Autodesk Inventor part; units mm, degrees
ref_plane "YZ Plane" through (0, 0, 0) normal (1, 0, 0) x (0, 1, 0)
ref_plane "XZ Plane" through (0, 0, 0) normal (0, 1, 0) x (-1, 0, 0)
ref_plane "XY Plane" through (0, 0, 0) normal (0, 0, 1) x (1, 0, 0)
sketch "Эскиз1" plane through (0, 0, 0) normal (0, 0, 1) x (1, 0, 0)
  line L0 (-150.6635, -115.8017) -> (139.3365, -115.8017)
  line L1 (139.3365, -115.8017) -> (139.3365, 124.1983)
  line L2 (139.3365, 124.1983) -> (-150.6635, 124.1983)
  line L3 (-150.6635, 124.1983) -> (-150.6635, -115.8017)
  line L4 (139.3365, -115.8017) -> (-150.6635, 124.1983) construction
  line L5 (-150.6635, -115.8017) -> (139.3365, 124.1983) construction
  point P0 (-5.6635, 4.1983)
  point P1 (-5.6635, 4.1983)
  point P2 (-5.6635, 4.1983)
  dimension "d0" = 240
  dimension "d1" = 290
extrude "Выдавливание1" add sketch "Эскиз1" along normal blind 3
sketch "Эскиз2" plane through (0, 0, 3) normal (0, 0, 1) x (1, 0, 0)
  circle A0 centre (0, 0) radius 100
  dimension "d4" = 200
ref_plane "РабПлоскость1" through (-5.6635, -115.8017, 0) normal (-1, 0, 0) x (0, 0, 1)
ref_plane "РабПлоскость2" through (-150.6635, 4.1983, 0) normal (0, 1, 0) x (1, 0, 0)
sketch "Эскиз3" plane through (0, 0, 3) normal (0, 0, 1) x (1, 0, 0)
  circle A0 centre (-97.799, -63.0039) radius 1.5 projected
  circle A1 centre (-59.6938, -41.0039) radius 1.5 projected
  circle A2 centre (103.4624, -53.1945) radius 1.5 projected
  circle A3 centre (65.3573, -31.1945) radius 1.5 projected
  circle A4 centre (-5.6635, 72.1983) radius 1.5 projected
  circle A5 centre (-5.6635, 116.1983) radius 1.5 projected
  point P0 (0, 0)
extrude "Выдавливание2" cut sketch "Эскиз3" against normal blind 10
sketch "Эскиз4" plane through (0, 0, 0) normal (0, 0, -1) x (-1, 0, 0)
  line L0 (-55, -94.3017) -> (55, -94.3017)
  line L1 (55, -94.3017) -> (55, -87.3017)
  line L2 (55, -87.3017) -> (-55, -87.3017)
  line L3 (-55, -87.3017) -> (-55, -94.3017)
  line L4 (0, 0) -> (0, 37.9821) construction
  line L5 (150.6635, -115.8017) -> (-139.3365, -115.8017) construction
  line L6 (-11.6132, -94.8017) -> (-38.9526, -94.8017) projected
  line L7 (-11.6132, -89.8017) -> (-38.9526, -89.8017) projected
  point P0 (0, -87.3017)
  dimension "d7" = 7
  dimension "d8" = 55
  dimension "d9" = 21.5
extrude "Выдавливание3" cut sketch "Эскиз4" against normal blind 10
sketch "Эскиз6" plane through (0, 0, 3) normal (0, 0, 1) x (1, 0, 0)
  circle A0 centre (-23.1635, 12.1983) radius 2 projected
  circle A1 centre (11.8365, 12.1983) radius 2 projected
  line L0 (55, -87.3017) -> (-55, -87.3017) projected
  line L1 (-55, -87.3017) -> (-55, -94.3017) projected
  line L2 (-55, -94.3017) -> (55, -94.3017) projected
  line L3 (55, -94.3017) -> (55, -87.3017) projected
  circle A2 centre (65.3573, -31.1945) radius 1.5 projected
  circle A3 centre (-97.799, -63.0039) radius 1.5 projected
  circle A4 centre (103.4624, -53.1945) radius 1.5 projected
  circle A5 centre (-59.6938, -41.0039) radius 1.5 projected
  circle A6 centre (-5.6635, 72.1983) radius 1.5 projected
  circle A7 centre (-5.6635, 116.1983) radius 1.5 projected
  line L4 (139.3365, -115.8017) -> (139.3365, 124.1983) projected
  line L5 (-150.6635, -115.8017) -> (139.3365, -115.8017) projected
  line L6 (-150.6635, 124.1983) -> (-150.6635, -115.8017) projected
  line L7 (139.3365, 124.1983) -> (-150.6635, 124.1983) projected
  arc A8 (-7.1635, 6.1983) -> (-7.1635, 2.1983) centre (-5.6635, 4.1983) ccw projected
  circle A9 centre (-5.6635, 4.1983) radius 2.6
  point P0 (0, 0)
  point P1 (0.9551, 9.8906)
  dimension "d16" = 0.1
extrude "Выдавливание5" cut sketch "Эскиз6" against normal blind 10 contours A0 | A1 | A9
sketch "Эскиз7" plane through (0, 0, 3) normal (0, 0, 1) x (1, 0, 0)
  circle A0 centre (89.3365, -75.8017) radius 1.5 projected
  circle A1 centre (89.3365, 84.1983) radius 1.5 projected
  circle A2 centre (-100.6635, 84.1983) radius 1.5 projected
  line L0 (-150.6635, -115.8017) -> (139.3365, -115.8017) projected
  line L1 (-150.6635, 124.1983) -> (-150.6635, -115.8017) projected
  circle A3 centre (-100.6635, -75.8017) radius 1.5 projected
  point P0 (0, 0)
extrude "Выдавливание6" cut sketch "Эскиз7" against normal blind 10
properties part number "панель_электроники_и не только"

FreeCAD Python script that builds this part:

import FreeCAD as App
import Part
import Sketcher


def add_polygon(sketch, points):
    """Adds a closed chain of lines whose ends are joined by coincident constraints."""
    first, n = sketch.GeometryCount, len(points)
    for a, b in zip(points, points[1:] + points[:1]):
        sketch.addGeometry(Part.LineSegment(App.Vector(*a, 0), App.Vector(*b, 0)), False)
    for i in range(n):
        sketch.addConstraint(Sketcher.Constraint("Coincident", first + i, 2, first + (i + 1) % n, 1))

doc = App.newDocument("Part")
body = doc.addObject("PartDesign::Body", "Body")

sketch1 = body.newObject("Sketcher::SketchObject", "Sketch")
sketch1.AttachmentSupport = (doc.getObject("XY_Plane"), [""])
sketch1.MapMode = "FlatFace"
add_polygon(sketch1, [(-151, 124), (-151, -116), (139, -116), (139, 124)])
sketch1.addConstraint(Sketcher.Constraint("Vertical", 0))
sketch1.addConstraint(Sketcher.Constraint("Horizontal", 1))
sketch1.addConstraint(Sketcher.Constraint("Vertical", 2))
sketch1.addConstraint(Sketcher.Constraint("Horizontal", 3))
sketch1.addConstraint(Sketcher.Constraint("DistanceX", 1, 1, 1, 2, 290.0))
sketch1.addConstraint(Sketcher.Constraint("DistanceY", 0, 2, 0, 1, 240.0))
sketch1.addConstraint(Sketcher.Constraint("DistanceX", 0, 2, -1, 1, 150.6635))
sketch1.addConstraint(Sketcher.Constraint("DistanceY", 0, 2, -1, 1, 115.8017))
pad1 = body.newObject("PartDesign::Pad", "Pad")
pad1.Profile = sketch1
pad1.Length = 3

sketch2 = body.newObject("Sketcher::SketchObject", "Sketch001")
sketch2.AttachmentSupport = (doc.getObject("XY_Plane"), [""])
sketch2.MapMode = "FlatFace"
sketch2.AttachmentOffset = App.Placement(App.Vector(0, 0, 3), App.Rotation())
sketch2.addGeometry(Part.Circle(App.Vector(-97.8, -63, 0), App.Vector(0, 0, 1), 1.5), False)
sketch2.addGeometry(Part.Circle(App.Vector(-59.7, -41, 0), App.Vector(0, 0, 1), 1.5), False)
sketch2.addGeometry(Part.Circle(App.Vector(103.5, -53.2, 0), App.Vector(0, 0, 1), 1.5), False)
sketch2.addGeometry(Part.Circle(App.Vector(65.4, -31.2, 0), App.Vector(0, 0, 1), 1.5), False)
sketch2.addGeometry(Part.Circle(App.Vector(-5.7, 72.2, 0), App.Vector(0, 0, 1), 1.5), False)
sketch2.addGeometry(Part.Circle(App.Vector(-5.7, 116.2, 0), App.Vector(0, 0, 1), 1.5), False)
sketch2.addConstraint(Sketcher.Constraint("Equal", 0, 1))
sketch2.addConstraint(Sketcher.Constraint("Equal", 1, 2))
sketch2.addConstraint(Sketcher.Constraint("Equal", 2, 3))
sketch2.addConstraint(Sketcher.Constraint("Equal", 3, 4))
sketch2.addConstraint(Sketcher.Constraint("Equal", 4, 5))
sketch2.addConstraint(Sketcher.Constraint("Vertical", 4, 3, 5, 3))
sketch2.addConstraint(Sketcher.Constraint("Diameter", 0, 3.0))
sketch2.addConstraint(Sketcher.Constraint("DistanceY", 0, 3, 1, 3, 22.0))
sketch2.addConstraint(Sketcher.Constraint("DistanceY", 2, 3, 3, 3, 22.0))
sketch2.addConstraint(Sketcher.Constraint("DistanceY", 4, 3, 5, 3, 44.0))
sketch2.addConstraint(Sketcher.Constraint("DistanceX", 0, 3, -1, 1, 97.799))
sketch2.addConstraint(Sketcher.Constraint("DistanceY", 0, 3, -1, 1, 63.004))
sketch2.addConstraint(Sketcher.Constraint("DistanceX", 3, 3, 2, 3, 38.105))
sketch2.addConstraint(Sketcher.Constraint("DistanceX", 1, 3, 3, 3, 125.051))
sketch2.addConstraint(Sketcher.Constraint("DistanceX", 4, 3, 2, 3, 109.126))
sketch2.addConstraint(Sketcher.Constraint("DistanceX", 1, 3, -1, 1, 59.6938))
sketch2.addConstraint(Sketcher.Constraint("DistanceY", 2, 3, -1, 1, 53.1945))
sketch2.addConstraint(Sketcher.Constraint("DistanceY", -1, 1, 4, 3, 72.1983))
pocket1 = body.newObject("PartDesign::Pocket", "Pocket")
pocket1.Profile = sketch2
pocket1.Length = 10

sketch3 = body.newObject("Sketcher::SketchObject", "Sketch002")
sketch3.AttachmentSupport = (doc.getObject("XY_Plane"), [""])
sketch3.MapMode = "FlatFace"
add_polygon(sketch3, [(55, -87), (55, -94), (-55, -94), (-55, -87)])
sketch3.addConstraint(Sketcher.Constraint("Vertical", 0))
sketch3.addConstraint(Sketcher.Constraint("Horizontal", 1))
sketch3.addConstraint(Sketcher.Constraint("Vertical", 2))
sketch3.addConstraint(Sketcher.Constraint("Horizontal", 3))
sketch3.addConstraint(Sketcher.Constraint("DistanceY", 0, 2, 0, 1, 7.0))
sketch3.addConstraint(Sketcher.Constraint("DistanceX", -1, 1, 0, 2, 55.0))
sketch3.addConstraint(Sketcher.Constraint("DistanceX", 1, 2, -1, 1, 55.0))
sketch3.addConstraint(Sketcher.Constraint("DistanceY", 0, 2, -1, 1, 94.3017))
pocket2 = body.newObject("PartDesign::Pocket", "Pocket001")
pocket2.Profile = sketch3
pocket2.Length = 10
pocket2.Reversed = True

sketch4 = body.newObject("Sketcher::SketchObject", "Sketch003")
sketch4.AttachmentSupport = (doc.getObject("XY_Plane"), [""])
sketch4.MapMode = "FlatFace"
sketch4.AttachmentOffset = App.Placement(App.Vector(0, 0, 3), App.Rotation())
sketch4.addGeometry(Part.Circle(App.Vector(-23.2, 12.2, 0), App.Vector(0, 0, 1), 2), False)
sketch4.addGeometry(Part.Circle(App.Vector(11.8, 12.2, 0), App.Vector(0, 0, 1), 2), False)
sketch4.addGeometry(Part.Circle(App.Vector(-5.7, 4.2, 0), App.Vector(0, 0, 1), 2.6), False)
sketch4.addConstraint(Sketcher.Constraint("Equal", 0, 1))
sketch4.addConstraint(Sketcher.Constraint("Horizontal", 0, 3, 1, 3))
sketch4.addConstraint(Sketcher.Constraint("Diameter", 0, 4.0))
sketch4.addConstraint(Sketcher.Constraint("Diameter", 2, 5.2))
sketch4.addConstraint(Sketcher.Constraint("DistanceX", 0, 3, 1, 3, 35.0))
sketch4.addConstraint(Sketcher.Constraint("DistanceY", 2, 3, 0, 3, 8.0))
sketch4.addConstraint(Sketcher.Constraint("DistanceX", 0, 3, 2, 3, 17.5))
sketch4.addConstraint(Sketcher.Constraint("DistanceX", 0, 3, -1, 1, 23.1635))
sketch4.addConstraint(Sketcher.Constraint("DistanceY", -1, 1, 0, 3, 12.1983))
pocket3 = body.newObject("PartDesign::Pocket", "Pocket002")
pocket3.Profile = sketch4
pocket3.Length = 10

sketch5 = body.newObject("Sketcher::SketchObject", "Sketch004")
sketch5.AttachmentSupport = (doc.getObject("XY_Plane"), [""])
sketch5.MapMode = "FlatFace"
sketch5.AttachmentOffset = App.Placement(App.Vector(0, 0, 3), App.Rotation())
sketch5.addGeometry(Part.Circle(App.Vector(89.3, -75.8, 0), App.Vector(0, 0, 1), 1.5), False)
sketch5.addGeometry(Part.Circle(App.Vector(89.3, 84.2, 0), App.Vector(0, 0, 1), 1.5), False)
sketch5.addGeometry(Part.Circle(App.Vector(-100.7, 84.2, 0), App.Vector(0, 0, 1), 1.5), False)
sketch5.addGeometry(Part.Circle(App.Vector(-100.7, -75.8, 0), App.Vector(0, 0, 1), 1.5), False)
sketch5.addConstraint(Sketcher.Constraint("Equal", 0, 1))
sketch5.addConstraint(Sketcher.Constraint("Equal", 1, 2))
sketch5.addConstraint(Sketcher.Constraint("Equal", 2, 3))
sketch5.addConstraint(Sketcher.Constraint("Horizontal", 1, 3, 2, 3))
sketch5.addConstraint(Sketcher.Constraint("Horizontal", 0, 3, 3, 3))
sketch5.addConstraint(Sketcher.Constraint("Vertical", 0, 3, 1, 3))
sketch5.addConstraint(Sketcher.Constraint("Vertical", 2, 3, 3, 3))
sketch5.addConstraint(Sketcher.Constraint("Diameter", 0, 3.0))
sketch5.addConstraint(Sketcher.Constraint("DistanceY", 0, 3, 1, 3, 160.0))
sketch5.addConstraint(Sketcher.Constraint("DistanceX", 2, 3, 1, 3, 190.0))
sketch5.addConstraint(Sketcher.Constraint("DistanceX", -1, 1, 0, 3, 89.3365))
sketch5.addConstraint(Sketcher.Constraint("DistanceY", 0, 3, -1, 1, 75.8017))
pocket4 = body.newObject("PartDesign::Pocket", "Pocket003")
pocket4.Profile = sketch5
pocket4.Length = 10

doc.recompute()
